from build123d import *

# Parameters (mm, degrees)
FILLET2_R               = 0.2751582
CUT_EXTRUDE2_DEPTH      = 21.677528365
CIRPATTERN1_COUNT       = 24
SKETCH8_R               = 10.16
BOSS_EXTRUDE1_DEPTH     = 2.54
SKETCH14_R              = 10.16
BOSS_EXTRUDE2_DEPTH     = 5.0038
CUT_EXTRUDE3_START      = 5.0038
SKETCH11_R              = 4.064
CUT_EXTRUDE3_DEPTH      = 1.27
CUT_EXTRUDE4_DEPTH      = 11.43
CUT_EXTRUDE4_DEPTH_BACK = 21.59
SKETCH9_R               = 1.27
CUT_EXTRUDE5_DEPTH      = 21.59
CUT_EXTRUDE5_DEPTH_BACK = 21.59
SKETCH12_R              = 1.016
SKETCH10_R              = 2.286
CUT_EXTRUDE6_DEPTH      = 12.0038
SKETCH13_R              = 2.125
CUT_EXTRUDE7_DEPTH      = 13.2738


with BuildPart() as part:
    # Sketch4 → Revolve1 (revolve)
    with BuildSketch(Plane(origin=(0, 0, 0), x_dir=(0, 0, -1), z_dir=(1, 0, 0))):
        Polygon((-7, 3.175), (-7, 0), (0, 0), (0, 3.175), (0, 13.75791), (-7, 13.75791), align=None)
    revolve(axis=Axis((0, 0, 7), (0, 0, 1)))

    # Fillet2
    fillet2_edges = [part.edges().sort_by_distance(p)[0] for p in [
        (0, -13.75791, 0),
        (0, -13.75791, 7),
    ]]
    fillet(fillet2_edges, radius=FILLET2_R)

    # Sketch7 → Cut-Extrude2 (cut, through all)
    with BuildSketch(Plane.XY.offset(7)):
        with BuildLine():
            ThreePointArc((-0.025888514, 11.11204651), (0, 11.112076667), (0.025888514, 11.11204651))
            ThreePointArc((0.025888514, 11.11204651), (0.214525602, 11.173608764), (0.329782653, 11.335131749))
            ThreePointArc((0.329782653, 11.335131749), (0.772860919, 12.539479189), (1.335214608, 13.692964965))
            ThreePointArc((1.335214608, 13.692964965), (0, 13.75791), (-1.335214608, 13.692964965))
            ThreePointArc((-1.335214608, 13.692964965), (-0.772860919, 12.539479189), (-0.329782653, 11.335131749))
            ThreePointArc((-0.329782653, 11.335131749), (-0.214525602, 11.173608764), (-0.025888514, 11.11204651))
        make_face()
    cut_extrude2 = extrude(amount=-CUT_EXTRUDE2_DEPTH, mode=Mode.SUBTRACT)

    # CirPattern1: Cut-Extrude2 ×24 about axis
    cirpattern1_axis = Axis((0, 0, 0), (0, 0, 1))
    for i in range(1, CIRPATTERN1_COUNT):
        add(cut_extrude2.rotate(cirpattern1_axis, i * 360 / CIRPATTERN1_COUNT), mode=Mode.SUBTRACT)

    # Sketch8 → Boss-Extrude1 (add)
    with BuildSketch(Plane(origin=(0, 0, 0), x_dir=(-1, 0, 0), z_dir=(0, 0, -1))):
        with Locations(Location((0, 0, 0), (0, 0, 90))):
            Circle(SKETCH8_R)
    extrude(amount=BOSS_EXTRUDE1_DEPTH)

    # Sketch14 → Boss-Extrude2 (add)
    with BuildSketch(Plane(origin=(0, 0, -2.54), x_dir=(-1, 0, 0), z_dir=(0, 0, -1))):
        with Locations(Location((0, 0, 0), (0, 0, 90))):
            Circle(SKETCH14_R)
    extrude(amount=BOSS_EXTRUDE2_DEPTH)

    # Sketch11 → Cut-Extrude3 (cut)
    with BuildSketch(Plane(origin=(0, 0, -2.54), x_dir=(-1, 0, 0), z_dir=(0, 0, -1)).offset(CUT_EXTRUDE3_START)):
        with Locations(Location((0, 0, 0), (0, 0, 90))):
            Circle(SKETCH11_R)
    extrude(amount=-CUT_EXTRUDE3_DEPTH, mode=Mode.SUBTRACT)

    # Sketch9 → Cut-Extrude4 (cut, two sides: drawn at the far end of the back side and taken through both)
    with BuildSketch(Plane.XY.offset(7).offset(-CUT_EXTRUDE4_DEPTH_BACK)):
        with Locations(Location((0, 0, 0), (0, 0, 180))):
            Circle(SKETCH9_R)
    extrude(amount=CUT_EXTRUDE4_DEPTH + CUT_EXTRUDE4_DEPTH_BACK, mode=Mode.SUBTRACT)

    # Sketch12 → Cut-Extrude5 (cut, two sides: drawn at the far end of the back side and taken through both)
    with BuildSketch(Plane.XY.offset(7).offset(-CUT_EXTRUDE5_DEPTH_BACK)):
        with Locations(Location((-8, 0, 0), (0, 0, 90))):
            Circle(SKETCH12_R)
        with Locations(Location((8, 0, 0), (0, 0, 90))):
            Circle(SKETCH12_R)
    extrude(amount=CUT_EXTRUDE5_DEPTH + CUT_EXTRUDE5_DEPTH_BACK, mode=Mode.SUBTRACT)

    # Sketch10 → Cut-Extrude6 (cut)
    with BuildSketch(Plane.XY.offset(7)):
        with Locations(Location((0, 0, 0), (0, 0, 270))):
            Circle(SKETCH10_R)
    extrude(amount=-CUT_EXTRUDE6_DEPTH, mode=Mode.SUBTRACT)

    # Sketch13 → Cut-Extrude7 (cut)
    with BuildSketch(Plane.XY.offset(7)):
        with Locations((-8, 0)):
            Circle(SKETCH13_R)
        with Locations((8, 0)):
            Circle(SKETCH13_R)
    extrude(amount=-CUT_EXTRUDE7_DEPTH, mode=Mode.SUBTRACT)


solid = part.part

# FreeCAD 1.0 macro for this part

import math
import FreeCAD as App
import Part
import Sketcher
from FreeCAD import Vector
Q = App.Units.Quantity


def edges_at(feature, points):
    """Names of the edges that pass closest to the given points."""
    edges = feature.Shape.Edges
    near = lambda p: min(range(len(edges)), key=lambda i: edges[i].distToShape(Part.Vertex(*p))[0])
    return sorted({f"Edge{near(p) + 1}" for p in points})


def add_polygon(sketch, points):
    """Adds a closed chain of lines whose ends are joined by coincident constraints."""
    first, n = sketch.GeometryCount, len(points)
    for a, b in zip(points, points[1:] + points[:1]):
        sketch.addGeometry(Part.LineSegment(App.Vector(*a, 0), App.Vector(*b, 0)), False)
    for i in range(n):
        sketch.addConstraint(Sketcher.Constraint("Coincident", first + i, 2, first + (i + 1) % n, 1))

doc = App.newDocument("Part")
body = doc.addObject("PartDesign::Body", "Body")

# Sketch on YZ plane
sketch1 = body.newObject("Sketcher::SketchObject", "Sketch")
sketch1.AttachmentSupport = (doc.getObject("YZ_Plane"), [""])
sketch1.MapMode = "FlatFace"
add_polygon(sketch1, [(0, 7), (0, 0), (14, 0), (14, 7)])  # lines 0-3
sketch1.addConstraint([
    Sketcher.Constraint("Vertical", 0),
    Sketcher.Constraint("Horizontal", 1),
    Sketcher.Constraint("Vertical", 2),
    Sketcher.Constraint("Horizontal", 3),
    Sketcher.Constraint("Coincident", 0, 2, -1, 1),
    Sketcher.Constraint("DistanceY", 0, 2, 0, 1, 7.0),
    Sketcher.Constraint("DistanceX", 1, 1, 1, 2, 13.75791),
])
revolution = body.newObject("PartDesign::Revolution", "Revolution")
revolution.Profile = sketch1
revolution.ReferenceAxis = (sketch1, ["V_Axis"])
revolution.Angle = 360
doc.recompute()

fillet = body.newObject("PartDesign::Fillet", "Fillet")
fillet.Base = (revolution, edges_at(revolution, [(0, -13.758, 0), (0, -13.758, 7)]))
fillet.Radius = 0.275158

# Sketch on XY plane
sketch2 = body.newObject("Sketcher::SketchObject", "Sketch001")
sketch2.AttachmentSupport = (doc.getObject("XY_Plane"), [""])
sketch2.MapMode = "FlatFace"
sketch2.AttachmentOffset = App.Placement(Vector(0, 0, 7), App.Rotation())
sketch2.addGeometry([
    Part.ArcOfCircle(Part.Circle(Vector(0, 0, 0), Vector(0, 0, 1), 11.11), math.radians(89.87), math.radians(90.13)),  # 0
    Part.ArcOfCircle(Part.Circle(Vector(0.03, 11.43, 0), Vector(0, 0, 1), 0.32), math.radians(-90), math.radians(-17)),  # 1
    Part.ArcOfCircle(Part.Circle(Vector(12.46, 7.56, 0), Vector(0, 0, 1), 12.7), math.radians(151.11), math.radians(162.7)),  # 2
    Part.ArcOfCircle(Part.Circle(Vector(0, 0, 0), Vector(0, 0, 1), 13.76), math.radians(84.43), math.radians(95.57)),  # 3
    Part.ArcOfCircle(Part.Circle(Vector(-12.46, 7.56, 0), Vector(0, 0, 1), 12.7), math.radians(17.3), math.radians(28.89)),  # 4
    Part.ArcOfCircle(Part.Circle(Vector(-0.03, 11.43, 0), Vector(0, 0, 1), 0.32), math.radians(-163), math.radians(-90)),  # 5
], False)
sketch2.addConstraint([
    Sketcher.Constraint("Tangent", 0, 1, 1, 1),
    Sketcher.Constraint("Tangent", 1, 2, 2, 2),
    Sketcher.Constraint("Coincident", 2, 1, 3, 1),
    Sketcher.Constraint("Coincident", 3, 2, 4, 2),
    Sketcher.Constraint("Tangent", 4, 1, 5, 1),
    Sketcher.Constraint("Tangent", 5, 2, 0, 2),
    Sketcher.Constraint("Coincident", 3, 3, -1, 1),
    Sketcher.Constraint("Equal", 2, 4),
    Sketcher.Constraint("Equal", 1, 5),
    Sketcher.Constraint("Symmetric", 2, 3, 4, 3, -2),
    Sketcher.Constraint("PointOnObject", 0, 3, -2),
    Sketcher.Constraint("Radius", 2, Q("0.5 in")),
    Sketcher.Constraint("Radius", 3, 13.75791),
    Sketcher.Constraint("Radius", 0, 11.112114),
    Sketcher.Constraint("Radius", 1, 0.317523),
    Sketcher.Constraint("DistanceX", -1, 1, 1, 3, 0.026628),
    Sketcher.Constraint("DistanceY", -1, 1, 1, 3, 11.429569),
    Sketcher.Constraint("DistanceY", -1, 1, 1, 2, 11.335132),
])
pocket1 = body.newObject("PartDesign::Pocket", "Pocket")
pocket1.Profile = sketch2
pocket1.Type = "ThroughAll"
doc.recompute()

polarpattern = body.newObject("PartDesign::PolarPattern", "PolarPattern")
polarpattern.Originals = [pocket1]
polarpattern.Axis = (doc.getObject("Z_Axis"), [""])
polarpattern.Angle = 360
polarpattern.Occurrences = 24
body.Tip = polarpattern

# Sketch on XY plane
sketch3 = body.newObject("Sketcher::SketchObject", "Sketch002")
sketch3.AttachmentSupport = (doc.getObject("XY_Plane"), [""])
sketch3.MapMode = "FlatFace"
sketch3.addGeometry(Part.Circle(Vector(0, 0, 0), Vector(0, 0, 1), 10), False)
sketch3.addConstraint([
    Sketcher.Constraint("Coincident", 0, 3, -1, 1),
    Sketcher.Constraint("Diameter", 0, Q("0.8 in")),
])
pad1 = body.newObject("PartDesign::Pad", "Pad")
pad1.Profile = sketch3
pad1.Length = Q("0.1 in")
pad1.Reversed = True

# Sketch on XY plane
sketch4 = body.newObject("Sketcher::SketchObject", "Sketch003")
sketch4.AttachmentSupport = (doc.getObject("XY_Plane"), [""])
sketch4.MapMode = "FlatFace"
sketch4.AttachmentOffset = App.Placement(Vector(0, 0, -0.1 * 25.4), App.Rotation())
sketch4.addGeometry(Part.Circle(Vector(0, 0, 0), Vector(0, 0, 1), 10), False)
sketch4.addConstraint([
    Sketcher.Constraint("Coincident", 0, 3, -1, 1),
    Sketcher.Constraint("Diameter", 0, Q("0.8 in")),
])
pad2 = body.newObject("PartDesign::Pad", "Pad001")
pad2.Profile = sketch4
pad2.Length = Q("0.197 in")
pad2.Reversed = True

# Sketch on XY plane
sketch5 = body.newObject("Sketcher::SketchObject", "Sketch004")
sketch5.AttachmentSupport = (doc.getObject("XY_Plane"), [""])
sketch5.MapMode = "FlatFace"
sketch5.AttachmentOffset = App.Placement(Vector(0, 0, -0.297 * 25.4), App.Rotation())
sketch5.addGeometry(Part.Circle(Vector(0, 0, 0), Vector(0, 0, 1), 4.1), False)
sketch5.addConstraint([
    Sketcher.Constraint("Coincident", 0, 3, -1, 1),
    Sketcher.Constraint("Diameter", 0, Q("0.32 in")),
])
pocket2 = body.newObject("PartDesign::Pocket", "Pocket001")
pocket2.Profile = sketch5
pocket2.Length = Q("0.05 in")
pocket2.Reversed = True

# Sketch on XY plane
sketch6 = body.newObject("Sketcher::SketchObject", "Sketch005")
sketch6.AttachmentSupport = (doc.getObject("XY_Plane"), [""])
sketch6.MapMode = "FlatFace"
sketch6.AttachmentOffset = App.Placement(Vector(0, 0, 7), App.Rotation())
sketch6.addGeometry(Part.Circle(Vector(0, 0, 0), Vector(0, 0, 1), 1.3), False)
sketch6.addConstraint([
    Sketcher.Constraint("Coincident", 0, 3, -1, 1),
    Sketcher.Constraint("Diameter", 0, Q("0.1 in")),
])
pocket3 = body.newObject("PartDesign::Pocket", "Pocket002")
pocket3.Profile = sketch6
pocket3.Type = "ThroughAll"
pocket3.Midplane = True

# Sketch on XY plane
sketch7 = body.newObject("Sketcher::SketchObject", "Sketch006")
sketch7.AttachmentSupport = (doc.getObject("XY_Plane"), [""])
sketch7.MapMode = "FlatFace"
sketch7.AttachmentOffset = App.Placement(Vector(0, 0, 7), App.Rotation())
sketch7.addGeometry([
    Part.Circle(Vector(-8, 0, 0), Vector(0, 0, 1), 1),
    Part.Circle(Vector(8, 0, 0), Vector(0, 0, 1), 1),
], False)
sketch7.addConstraint([
    Sketcher.Constraint("Equal", 0, 1),
    Sketcher.Constraint("Symmetric", 0, 3, 1, 3, -1, 1),
    Sketcher.Constraint("PointOnObject", 0, 3, -1),
    Sketcher.Constraint("Diameter", 0, Q("0.08 in")),
    Sketcher.Constraint("DistanceX", 0, 3, -1, 1, 8.0),
])
pocket4 = body.newObject("PartDesign::Pocket", "Pocket003")
pocket4.Profile = sketch7
pocket4.Type = "ThroughAll"
pocket4.Midplane = True

# Sketch on XY plane
sketch8 = body.newObject("Sketcher::SketchObject", "Sketch007")
sketch8.AttachmentSupport = (doc.getObject("XY_Plane"), [""])
sketch8.MapMode = "FlatFace"
sketch8.AttachmentOffset = App.Placement(Vector(0, 0, 7), App.Rotation())
sketch8.addGeometry(Part.Circle(Vector(0, 0, 0), Vector(0, 0, 1), 2.3), False)
sketch8.addConstraint([
    Sketcher.Constraint("Coincident", 0, 3, -1, 1),
    Sketcher.Constraint("Diameter", 0, Q("0.18 in")),
])
pocket5 = body.newObject("PartDesign::Pocket", "Pocket004")
pocket5.Profile = sketch8
pocket5.Length = 12.0038

# Sketch on XY plane
sketch9 = body.newObject("Sketcher::SketchObject", "Sketch008")
sketch9.AttachmentSupport = (doc.getObject("XY_Plane"), [""])
sketch9.MapMode = "FlatFace"
sketch9.AttachmentOffset = App.Placement(Vector(0, 0, 7), App.Rotation())
sketch9.addGeometry([
    Part.Circle(Vector(-8, 0, 0), Vector(0, 0, 1), 2.1),
    Part.Circle(Vector(8, 0, 0), Vector(0, 0, 1), 2.1),
], False)
sketch9.addConstraint([
    Sketcher.Constraint("Equal", 0, 1),
    Sketcher.Constraint("Symmetric", 0, 3, 1, 3, -1, 1),
    Sketcher.Constraint("PointOnObject", 0, 3, -1),
    Sketcher.Constraint("Diameter", 0, 4.25),
    Sketcher.Constraint("DistanceX", 0, 3, -1, 1, 8.0),
])
pocket6 = body.newObject("PartDesign::Pocket", "Pocket005")
pocket6.Profile = sketch9
pocket6.Length = 13.2738

doc.recompute()
